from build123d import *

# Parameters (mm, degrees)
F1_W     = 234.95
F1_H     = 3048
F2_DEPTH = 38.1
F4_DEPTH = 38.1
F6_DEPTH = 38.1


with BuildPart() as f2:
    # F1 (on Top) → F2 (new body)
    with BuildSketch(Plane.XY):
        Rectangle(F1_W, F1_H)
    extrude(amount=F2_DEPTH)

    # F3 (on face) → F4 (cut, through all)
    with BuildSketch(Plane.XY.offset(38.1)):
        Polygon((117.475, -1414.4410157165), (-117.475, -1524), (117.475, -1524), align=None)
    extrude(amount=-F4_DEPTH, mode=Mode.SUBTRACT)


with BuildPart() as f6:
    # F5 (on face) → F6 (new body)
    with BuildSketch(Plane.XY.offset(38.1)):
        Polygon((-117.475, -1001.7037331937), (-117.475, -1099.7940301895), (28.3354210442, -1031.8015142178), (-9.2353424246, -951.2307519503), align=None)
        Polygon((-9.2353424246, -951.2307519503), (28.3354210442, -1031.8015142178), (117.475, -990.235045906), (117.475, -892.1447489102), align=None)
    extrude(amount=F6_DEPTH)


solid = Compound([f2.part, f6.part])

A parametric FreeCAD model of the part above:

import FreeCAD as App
import Part
import Sketcher
Q = App.Units.Quantity


def add_polygon(sketch, points):
    """Adds a closed chain of lines whose ends are joined by coincident constraints."""
    first, n = sketch.GeometryCount, len(points)
    for a, b in zip(points, points[1:] + points[:1]):
        sketch.addGeometry(Part.LineSegment(App.Vector(*a, 0), App.Vector(*b, 0)), False)
    for i in range(n):
        sketch.addConstraint(Sketcher.Constraint("Coincident", first + i, 2, first + (i + 1) % n, 1))

doc = App.newDocument("Part")
params = doc.addObject("Spreadsheet::Sheet", "Params")
for row, (alias, value) in enumerate([
    ("sketch1_height", "120 in"),
    ("sketch1_width", "9.25 in"),
    ("pad1_length", "1.5 in"),
    ("sketch2_width", "9.25 in"),
    ("pad2_length", "1.5 in"),
], start=1):
    params.set(f"A{row}", alias)
    params.set(f"B{row}", "=" + value)
    params.setAlias(f"B{row}", alias)

body = doc.addObject("PartDesign::Body", "Body")

sketch1 = body.newObject("Sketcher::SketchObject", "Sketch")
sketch1.AttachmentSupport = (doc.getObject("XY_Plane"), [""])
sketch1.MapMode = "FlatFace"
add_polygon(sketch1, [(-117.475, 1524), (-117.475, -1524), (117.475, -1524), (117.475, 1524)])
sketch1.addConstraint(Sketcher.Constraint("Vertical", 0))
sketch1.addConstraint(Sketcher.Constraint("Horizontal", 1))
sketch1.addConstraint(Sketcher.Constraint("Vertical", 2))
sketch1.addConstraint(Sketcher.Constraint("Horizontal", 3))
sketch1.addConstraint(Sketcher.Constraint("Symmetric", 0, 2, 2, 2, -1, 1))
sketch1.addConstraint(Sketcher.Constraint("DistanceY", 0, 2, 0, 1, Q("120 in")))
sketch1.addConstraint(Sketcher.Constraint("DistanceX", 1, 1, 1, 2, Q("9.25 in")))
sketch1.setExpression("Constraints[9]", "Params.sketch1_height")
sketch1.setExpression("Constraints[10]", "Params.sketch1_width")
pad1 = body.newObject("PartDesign::Pad", "Pad")
pad1.Profile = sketch1
pad1.setExpression("Length", "Params.pad1_length")

sketch2 = body.newObject("Sketcher::SketchObject", "Sketch001")
sketch2.AttachmentSupport = (doc.getObject("XY_Plane"), [""])
sketch2.MapMode = "FlatFace"
sketch2.AttachmentOffset = App.Placement(App.Vector(0, 0, 1.5 * 25.4), App.Rotation())
add_polygon(sketch2, [(117.475, -1414.441016), (-117.475, -1524), (117.475, -1524)])
sketch2.addConstraint(Sketcher.Constraint("Horizontal", 1))
sketch2.addConstraint(Sketcher.Constraint("Vertical", 2))
sketch2.addConstraint(Sketcher.Constraint("DistanceY", 0, 2, -1, 1, Q("60 in")))
sketch2.addConstraint(Sketcher.Constraint("Angle", 0, Q("-155 deg")))
sketch2.addConstraint(Sketcher.Constraint("DistanceX", 1, 1, 1, 2, Q("9.25 in")))
sketch2.addConstraint(Sketcher.Constraint("DistanceX", 0, 2, -1, 1, Q("4.625 in")))
sketch2.setExpression("Constraints[7]", "Params.sketch2_width")
pocket1 = body.newObject("PartDesign::Pocket", "Pocket")
pocket1.Profile = sketch2
pocket1.Type = "ThroughAll"
body2 = doc.addObject("PartDesign::Body", "Body001")

sketch3 = body2.newObject("Sketcher::SketchObject", "Sketch002")
sketch3.AttachmentSupport = (doc.getObject("XY_Plane001"), [""])
sketch3.MapMode = "FlatFace"
sketch3.AttachmentOffset = App.Placement(App.Vector(0, 0, 1.5 * 25.4), App.Rotation())
add_polygon(sketch3, [(-117.475, -1001.703733), (-117.475, -1099.79403), (117.475, -990.235046), (117.475, -892.144749), (-9.235342, -951.230752)])
sketch3.addConstraint(Sketcher.Constraint("Vertical", 0))
sketch3.addConstraint(Sketcher.Constraint("Vertical", 2))
sketch3.addConstraint(Sketcher.Constraint("Parallel", 1, 3))
sketch3.addConstraint(Sketcher.Constraint("Parallel", 3, 4))
sketch3.addConstraint(Sketcher.Constraint("Angle", 1, Q("25 deg")))
sketch3.addConstraint(Sketcher.Constraint("DistanceX", 0, 2, 1, 2, Q("9.25 in")))
sketch3.addConstraint(Sketcher.Constraint("DistanceX", 0, 2, -1, 1, Q("4.625 in")))
sketch3.addConstraint(Sketcher.Constraint("Distance", 4, 119.429248))
sketch3.addConstraint(Sketcher.Constraint("DistanceY", 0, 2, 0, 1, 98.090297))
sketch3.addConstraint(Sketcher.Constraint("DistanceY", 0, 2, -1, 1, 1099.79403))
pad2 = body2.newObject("PartDesign::Pad", "Pad001")
pad2.Profile = sketch3
pad2.setExpression("Length", "Params.pad2_length")

doc.recompute()
